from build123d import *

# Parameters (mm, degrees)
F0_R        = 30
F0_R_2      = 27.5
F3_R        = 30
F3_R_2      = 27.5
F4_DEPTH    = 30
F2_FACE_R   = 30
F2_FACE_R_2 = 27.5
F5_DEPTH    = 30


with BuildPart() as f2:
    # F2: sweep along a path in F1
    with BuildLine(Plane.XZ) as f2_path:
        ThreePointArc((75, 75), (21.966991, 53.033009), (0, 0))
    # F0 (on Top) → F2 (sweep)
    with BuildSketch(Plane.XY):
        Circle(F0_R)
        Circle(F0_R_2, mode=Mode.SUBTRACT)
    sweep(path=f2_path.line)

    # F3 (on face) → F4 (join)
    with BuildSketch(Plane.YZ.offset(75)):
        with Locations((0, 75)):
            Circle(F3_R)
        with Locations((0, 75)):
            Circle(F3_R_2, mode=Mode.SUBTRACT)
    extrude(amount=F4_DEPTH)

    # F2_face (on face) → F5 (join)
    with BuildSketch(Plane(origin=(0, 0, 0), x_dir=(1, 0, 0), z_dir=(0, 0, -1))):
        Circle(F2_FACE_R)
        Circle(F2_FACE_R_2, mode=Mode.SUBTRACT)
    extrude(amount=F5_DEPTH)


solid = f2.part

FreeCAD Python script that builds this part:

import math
import FreeCAD as App
import Part
import Sketcher
from FreeCAD import Vector

doc = App.newDocument("Part")
params = doc.addObject("Spreadsheet::Sheet", "Params")
for row, (alias, value) in enumerate([
    ("sketch1_diameter", "60 mm"),
    ("sketch1_diameter2", "55 mm"),
    ("sketch2_radius", "74.999999 mm"),
    ("sketch3_diameter", "60 mm"),
    ("sketch3_diameter2", "55 mm"),
    ("pad1_length", "30 mm"),
    ("sketch4_diameter", "60 mm"),
    ("sketch4_diameter2", "55 mm"),
    ("pad2_length", "30 mm"),
], start=1):
    params.set(f"A{row}", alias)
    params.set(f"B{row}", "=" + value)
    params.setAlias(f"B{row}", alias)

body = doc.addObject("PartDesign::Body", "Body")

# Sketch on XY plane
sketch1 = body.newObject("Sketcher::SketchObject", "Sketch")
sketch1.AttachmentSupport = (doc.getObject("XY_Plane"), [""])
sketch1.MapMode = "FlatFace"
sketch1.addGeometry(Part.Circle(Vector(0, 0, 0), Vector(0, 0, 1), 30), False)
sketch1.addGeometry(Part.Circle(Vector(0, 0, 0), Vector(0, 0, 1), 28), False)
sketch1.addConstraint(Sketcher.Constraint("Coincident", 0, 3, -1, 1))
sketch1.addConstraint(Sketcher.Constraint("Coincident", 1, 3, -1, 1))
sketch1.addConstraint(Sketcher.Constraint("Diameter", 0, 60.0))
sketch1.addConstraint(Sketcher.Constraint("Diameter", 1, 55.0))
sketch1.setExpression("Constraints[2]", "Params.sketch1_diameter")
sketch1.setExpression("Constraints[3]", "Params.sketch1_diameter2")

# Sketch on XZ plane
sketch2 = body.newObject("Sketcher::SketchObject", "Sketch001")
sketch2.AttachmentSupport = (doc.getObject("XZ_Plane"), [""])
sketch2.MapMode = "FlatFace"
sketch2.addGeometry(Part.ArcOfCircle(Part.Circle(Vector(75, 0, 0), Vector(0, 0, 1), 75), math.radians(90), math.radians(180)), False)
sketch2.addConstraint(Sketcher.Constraint("Coincident", 0, 2, -1, 1))
sketch2.addConstraint(Sketcher.Constraint("PointOnObject", 0, 3, -1))
sketch2.addConstraint(Sketcher.Constraint("Radius", 0, 74.999999))
sketch2.addConstraint(Sketcher.Constraint("DistanceX", -1, 1, 0, 1, 75.0))
sketch2.setExpression("Constraints[2]", "Params.sketch2_radius")
doc.recompute()

additivepipe = body.newObject("PartDesign::AdditivePipe", "AdditivePipe")
additivepipe.Profile = sketch1
additivepipe.Spine = (sketch2, ["Edge1"])

# Sketch on YZ plane
sketch3 = body.newObject("Sketcher::SketchObject", "Sketch002")
sketch3.AttachmentSupport = (doc.getObject("YZ_Plane"), [""])
sketch3.MapMode = "FlatFace"
sketch3.AttachmentOffset = App.Placement(Vector(0, 0, 75), App.Rotation())
sketch3.addGeometry(Part.Circle(Vector(0, 75, 0), Vector(0, 0, 1), 30), False)
sketch3.addGeometry(Part.Circle(Vector(0, 75, 0), Vector(0, 0, 1), 28), False)
sketch3.addConstraint(Sketcher.Constraint("Coincident", 1, 3, 0, 3))
sketch3.addConstraint(Sketcher.Constraint("PointOnObject", 0, 3, -2))
sketch3.addConstraint(Sketcher.Constraint("Diameter", 0, 60.0))
sketch3.addConstraint(Sketcher.Constraint("Diameter", 1, 55.0))
sketch3.addConstraint(Sketcher.Constraint("DistanceY", -1, 1, 0, 3, 75.0))
sketch3.setExpression("Constraints[2]", "Params.sketch3_diameter")
sketch3.setExpression("Constraints[3]", "Params.sketch3_diameter2")
pad1 = body.newObject("PartDesign::Pad", "Pad")
pad1.Profile = sketch3
pad1.setExpression("Length", "Params.pad1_length")

# Sketch on XY plane
sketch4 = body.newObject("Sketcher::SketchObject", "Sketch003")
sketch4.AttachmentSupport = (doc.getObject("XY_Plane"), [""])
sketch4.MapMode = "FlatFace"
sketch4.addGeometry(Part.Circle(Vector(0, 0, 0), Vector(0, 0, 1), 30), False)
sketch4.addGeometry(Part.Circle(Vector(0, 0, 0), Vector(0, 0, 1), 28), False)
sketch4.addConstraint(Sketcher.Constraint("Coincident", 0, 3, -1, 1))
sketch4.addConstraint(Sketcher.Constraint("Coincident", 1, 3, -1, 1))
sketch4.addConstraint(Sketcher.Constraint("Diameter", 0, 60.0))
sketch4.addConstraint(Sketcher.Constraint("Diameter", 1, 55.0))
sketch4.setExpression("Constraints[2]", "Params.sketch4_diameter")
sketch4.setExpression("Constraints[3]", "Params.sketch4_diameter2")
pad2 = body.newObject("PartDesign::Pad", "Pad001")
pad2.Profile = sketch4
pad2.setExpression("Length", "Params.pad2_length")
pad2.Reversed = True

doc.recompute()
